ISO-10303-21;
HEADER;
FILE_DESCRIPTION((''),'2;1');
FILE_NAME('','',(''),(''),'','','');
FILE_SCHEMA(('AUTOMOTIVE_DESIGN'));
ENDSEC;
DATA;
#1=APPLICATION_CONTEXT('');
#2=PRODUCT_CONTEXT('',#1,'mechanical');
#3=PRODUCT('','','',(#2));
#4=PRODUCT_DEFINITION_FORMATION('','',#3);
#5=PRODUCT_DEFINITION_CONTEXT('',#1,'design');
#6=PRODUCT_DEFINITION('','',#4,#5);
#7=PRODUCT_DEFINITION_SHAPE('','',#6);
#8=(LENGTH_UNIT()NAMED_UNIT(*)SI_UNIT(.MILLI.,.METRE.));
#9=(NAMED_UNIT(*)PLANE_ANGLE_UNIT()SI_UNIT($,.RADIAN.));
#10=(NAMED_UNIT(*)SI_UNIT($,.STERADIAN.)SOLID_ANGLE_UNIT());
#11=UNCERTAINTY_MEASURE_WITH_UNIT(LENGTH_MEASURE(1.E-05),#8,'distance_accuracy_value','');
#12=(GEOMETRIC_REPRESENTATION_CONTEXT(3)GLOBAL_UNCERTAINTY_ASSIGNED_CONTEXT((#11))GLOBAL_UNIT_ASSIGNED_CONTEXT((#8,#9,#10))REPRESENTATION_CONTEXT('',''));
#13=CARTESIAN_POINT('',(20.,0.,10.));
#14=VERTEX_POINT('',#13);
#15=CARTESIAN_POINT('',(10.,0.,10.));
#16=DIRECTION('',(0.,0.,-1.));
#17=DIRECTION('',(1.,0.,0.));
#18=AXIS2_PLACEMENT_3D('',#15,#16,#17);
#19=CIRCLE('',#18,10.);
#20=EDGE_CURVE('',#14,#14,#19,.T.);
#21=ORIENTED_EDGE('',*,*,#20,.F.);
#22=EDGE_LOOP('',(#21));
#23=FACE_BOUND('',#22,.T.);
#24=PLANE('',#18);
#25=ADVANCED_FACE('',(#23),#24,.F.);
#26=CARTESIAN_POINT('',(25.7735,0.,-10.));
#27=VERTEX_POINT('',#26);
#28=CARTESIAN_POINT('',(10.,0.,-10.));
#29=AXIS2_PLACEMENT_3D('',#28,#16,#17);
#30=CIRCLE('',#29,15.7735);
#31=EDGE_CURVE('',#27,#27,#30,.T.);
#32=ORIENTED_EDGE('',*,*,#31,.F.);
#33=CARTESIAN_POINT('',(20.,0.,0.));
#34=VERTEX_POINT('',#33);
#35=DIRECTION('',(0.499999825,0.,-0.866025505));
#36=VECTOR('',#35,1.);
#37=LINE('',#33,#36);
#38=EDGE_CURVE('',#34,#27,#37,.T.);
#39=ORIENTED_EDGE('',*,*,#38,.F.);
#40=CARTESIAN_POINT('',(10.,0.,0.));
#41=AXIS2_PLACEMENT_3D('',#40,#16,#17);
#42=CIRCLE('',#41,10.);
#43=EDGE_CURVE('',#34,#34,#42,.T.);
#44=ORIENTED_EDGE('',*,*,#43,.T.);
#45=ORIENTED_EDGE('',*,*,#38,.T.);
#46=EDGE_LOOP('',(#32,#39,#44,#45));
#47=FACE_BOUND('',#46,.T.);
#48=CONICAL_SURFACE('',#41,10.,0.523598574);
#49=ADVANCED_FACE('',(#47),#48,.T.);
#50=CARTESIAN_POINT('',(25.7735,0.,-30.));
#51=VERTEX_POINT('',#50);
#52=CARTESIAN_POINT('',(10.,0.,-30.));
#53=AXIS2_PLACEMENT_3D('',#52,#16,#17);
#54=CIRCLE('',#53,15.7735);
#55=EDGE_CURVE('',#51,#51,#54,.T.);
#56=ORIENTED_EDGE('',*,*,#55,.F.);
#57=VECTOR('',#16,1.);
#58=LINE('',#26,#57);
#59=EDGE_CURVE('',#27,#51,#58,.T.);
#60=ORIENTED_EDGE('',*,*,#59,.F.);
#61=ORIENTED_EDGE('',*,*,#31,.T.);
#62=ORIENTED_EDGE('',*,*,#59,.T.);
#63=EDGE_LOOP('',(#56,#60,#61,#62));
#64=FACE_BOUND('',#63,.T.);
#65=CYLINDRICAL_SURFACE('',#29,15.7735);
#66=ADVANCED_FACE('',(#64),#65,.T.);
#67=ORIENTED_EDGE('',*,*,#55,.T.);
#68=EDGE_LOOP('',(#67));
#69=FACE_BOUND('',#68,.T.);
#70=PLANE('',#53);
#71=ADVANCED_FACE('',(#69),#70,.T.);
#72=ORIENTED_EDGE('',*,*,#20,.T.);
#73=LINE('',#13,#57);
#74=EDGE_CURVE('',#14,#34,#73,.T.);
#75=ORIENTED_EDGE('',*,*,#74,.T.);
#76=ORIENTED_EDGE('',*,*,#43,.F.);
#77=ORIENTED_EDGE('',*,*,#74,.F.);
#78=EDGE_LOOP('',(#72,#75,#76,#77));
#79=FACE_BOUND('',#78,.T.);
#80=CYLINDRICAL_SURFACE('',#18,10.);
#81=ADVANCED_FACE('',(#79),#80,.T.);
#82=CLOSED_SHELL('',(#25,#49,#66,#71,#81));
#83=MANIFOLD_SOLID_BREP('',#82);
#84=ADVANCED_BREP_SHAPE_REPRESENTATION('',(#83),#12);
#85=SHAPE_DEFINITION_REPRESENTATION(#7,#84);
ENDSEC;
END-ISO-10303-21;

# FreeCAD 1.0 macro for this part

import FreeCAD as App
import Part
import Sketcher

V = App.Vector
Q = App.Units.Quantity

doc = App.newDocument("Part")
body = doc.addObject("PartDesign::Body", "Body")

sketch1 = body.newObject("Sketcher::SketchObject", "Sketch")
sketch1.AttachmentSupport = (doc.getObject("XZ_Plane"), [""])
sketch1.MapMode = "FlatFace"
sketch1.addGeometry([
    Part.LineSegment(V(20, 10, 0), V(10, 10, 0)),
    Part.LineSegment(V(10, 10, 0), V(10, -30, 0)),
    Part.LineSegment(V(10, -30, 0), V(26, -30, 0)),
    Part.LineSegment(V(26, -30, 0), V(26, -10, 0)),
    Part.LineSegment(V(26, -10, 0), V(20, 0, 0)),
    Part.LineSegment(V(20, 0, 0), V(20, 10, 0)),
], False)
sketch1.addGeometry(Part.LineSegment(V(10, 10, 0), V(10, -30, 0)), True)
sketch1.addConstraint([
    Sketcher.Constraint("Coincident", 0, 2, 1, 1),
    Sketcher.Constraint("Coincident", 1, 2, 2, 1),
    Sketcher.Constraint("Coincident", 2, 2, 3, 1),
    Sketcher.Constraint("Coincident", 3, 2, 4, 1),
    Sketcher.Constraint("Coincident", 4, 2, 5, 1),
    Sketcher.Constraint("Coincident", 5, 2, 0, 1),
    Sketcher.Constraint("Horizontal", 0),
    Sketcher.Constraint("Vertical", 1),
    Sketcher.Constraint("Horizontal", 2),
    Sketcher.Constraint("Vertical", 3),
    Sketcher.Constraint("Vertical", 5),
    Sketcher.Constraint("Vertical", 6),
    Sketcher.Constraint("Coincident", 6, 1, 0, 2),
    Sketcher.Constraint("PointOnObject", 4, 2, -1),
    Sketcher.Constraint("Horizontal", 2, 2, 6, 2),
    Sketcher.Constraint("Equal", 0, 5),
    Sketcher.Constraint("Angle", 4, Q("120 deg")),
    Sketcher.Constraint("DistanceX", 2, 1, 2, 2, Q("0.621 in")),
    Sketcher.Constraint("DistanceX", 0, 2, 0, 1, Q("0.3937 in")),
    Sketcher.Constraint("DistanceY", 1, 2, 1, 1, Q("1.5748 in")),
    Sketcher.Constraint("DistanceX", -1, 1, 0, 2, Q("0.3937 in")),
])
revolution = body.newObject("PartDesign::Revolution", "Revolution")
revolution.Profile = sketch1
revolution.ReferenceAxis = (sketch1, ["Axis0"])
revolution.Angle = 360

doc.recompute()
